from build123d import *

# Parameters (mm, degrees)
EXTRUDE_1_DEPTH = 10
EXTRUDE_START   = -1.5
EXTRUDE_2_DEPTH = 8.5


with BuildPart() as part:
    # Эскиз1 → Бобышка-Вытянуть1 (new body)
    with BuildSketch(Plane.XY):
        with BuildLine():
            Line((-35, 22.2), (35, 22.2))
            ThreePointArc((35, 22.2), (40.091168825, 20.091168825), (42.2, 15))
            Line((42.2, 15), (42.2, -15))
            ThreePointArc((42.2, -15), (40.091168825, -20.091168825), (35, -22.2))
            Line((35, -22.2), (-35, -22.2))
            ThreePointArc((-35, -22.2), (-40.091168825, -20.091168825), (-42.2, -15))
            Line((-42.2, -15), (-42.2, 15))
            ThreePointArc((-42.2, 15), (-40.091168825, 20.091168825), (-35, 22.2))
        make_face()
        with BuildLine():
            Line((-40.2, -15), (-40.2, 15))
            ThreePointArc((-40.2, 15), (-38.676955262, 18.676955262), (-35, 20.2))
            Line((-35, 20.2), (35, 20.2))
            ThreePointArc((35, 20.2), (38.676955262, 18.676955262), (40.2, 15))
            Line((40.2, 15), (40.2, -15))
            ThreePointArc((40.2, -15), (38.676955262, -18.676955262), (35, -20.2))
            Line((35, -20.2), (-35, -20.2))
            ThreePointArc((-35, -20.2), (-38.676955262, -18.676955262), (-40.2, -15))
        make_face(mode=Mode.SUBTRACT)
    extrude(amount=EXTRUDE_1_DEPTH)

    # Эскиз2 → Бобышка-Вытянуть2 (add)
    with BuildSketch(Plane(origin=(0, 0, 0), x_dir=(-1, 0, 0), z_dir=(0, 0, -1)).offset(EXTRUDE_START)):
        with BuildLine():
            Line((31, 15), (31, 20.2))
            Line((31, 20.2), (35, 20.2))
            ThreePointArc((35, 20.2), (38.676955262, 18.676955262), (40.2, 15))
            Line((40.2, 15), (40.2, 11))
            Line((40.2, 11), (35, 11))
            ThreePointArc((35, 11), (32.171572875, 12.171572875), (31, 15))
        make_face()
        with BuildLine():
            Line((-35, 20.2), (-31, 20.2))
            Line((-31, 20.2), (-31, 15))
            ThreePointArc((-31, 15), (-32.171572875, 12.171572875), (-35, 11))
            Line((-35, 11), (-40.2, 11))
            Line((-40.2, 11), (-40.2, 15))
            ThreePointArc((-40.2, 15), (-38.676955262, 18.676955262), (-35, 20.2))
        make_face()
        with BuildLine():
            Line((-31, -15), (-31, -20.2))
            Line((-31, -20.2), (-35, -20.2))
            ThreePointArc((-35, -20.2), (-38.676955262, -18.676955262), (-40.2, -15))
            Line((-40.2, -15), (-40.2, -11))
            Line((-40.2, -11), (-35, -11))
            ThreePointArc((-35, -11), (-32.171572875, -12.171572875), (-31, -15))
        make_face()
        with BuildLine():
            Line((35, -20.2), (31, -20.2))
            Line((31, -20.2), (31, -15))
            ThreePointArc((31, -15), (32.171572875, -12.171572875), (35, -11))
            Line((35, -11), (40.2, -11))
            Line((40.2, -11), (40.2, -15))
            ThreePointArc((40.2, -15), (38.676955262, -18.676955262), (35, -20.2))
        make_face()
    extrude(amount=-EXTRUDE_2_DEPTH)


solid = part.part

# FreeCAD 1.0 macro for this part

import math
import FreeCAD as App
import Part
import Sketcher
from FreeCAD import Vector
Q = App.Units.Quantity

doc = App.newDocument("Part")
body = doc.addObject("PartDesign::Body", "Body")

# Sketch on XY plane
sketch1 = doc.addObject("Sketcher::SketchObject", "Sketch")
body.addObject(sketch1)
sketch1.AttachmentSupport = (doc.XY_Plane, [""])
sketch1.MapMode = "FlatFace"
sketch1.addGeometry([
    Part.LineSegment(Vector(35, 22, 0), Vector(-35, 22, 0)),  # 0
    Part.ArcOfCircle(Part.Circle(Vector(-35, 15, 0), Vector(0, 0, 1), 7), math.radians(90), math.radians(180)),  # 1
    Part.LineSegment(Vector(-42, 15, 0), Vector(-42, -15, 0)),  # 2
    Part.ArcOfCircle(Part.Circle(Vector(-35, -15, 0), Vector(0, 0, 1), 7), math.radians(180), math.radians(270)),  # 3
    Part.LineSegment(Vector(-35, -22, 0), Vector(35, -22, 0)),  # 4
    Part.ArcOfCircle(Part.Circle(Vector(35, -15, 0), Vector(0, 0, 1), 7), math.radians(-90), math.radians(0)),  # 5
    Part.LineSegment(Vector(42, -15, 0), Vector(42, 15, 0)),  # 6
    Part.ArcOfCircle(Part.Circle(Vector(35, 15, 0), Vector(0, 0, 1), 7), math.radians(0), math.radians(90)),  # 7
    Part.LineSegment(Vector(-40, -15, 0), Vector(-40, 15, 0)),  # 8
    Part.ArcOfCircle(Part.Circle(Vector(-35, 15, 0), Vector(0, 0, 1), 5), math.radians(90), math.radians(180)),  # 9
    Part.LineSegment(Vector(-35, 20, 0), Vector(35, 20, 0)),  # 10
    Part.ArcOfCircle(Part.Circle(Vector(35, 15, 0), Vector(0, 0, 1), 5), math.radians(0), math.radians(90)),  # 11
    Part.LineSegment(Vector(40, 15, 0), Vector(40, -15, 0)),  # 12
    Part.ArcOfCircle(Part.Circle(Vector(35, -15, 0), Vector(0, 0, 1), 5), math.radians(-90), math.radians(0)),  # 13
    Part.LineSegment(Vector(35, -20, 0), Vector(-35, -20, 0)),  # 14
    Part.ArcOfCircle(Part.Circle(Vector(-35, -15, 0), Vector(0, 0, 1), 5), math.radians(-180), math.radians(-90)),  # 15
], False)
sketch1.addConstraint([
    Sketcher.Constraint("Tangent", 0, 2, 1, 1),
    Sketcher.Constraint("Tangent", 1, 2, 2, 1),
    Sketcher.Constraint("Tangent", 2, 2, 3, 1),
    Sketcher.Constraint("Tangent", 3, 2, 4, 1),
    Sketcher.Constraint("Tangent", 4, 2, 5, 1),
    Sketcher.Constraint("Tangent", 5, 2, 6, 1),
    Sketcher.Constraint("Tangent", 6, 2, 7, 1),
    Sketcher.Constraint("Tangent", 7, 2, 0, 1),
    Sketcher.Constraint("Tangent", 8, 2, 9, 2),
    Sketcher.Constraint("Tangent", 9, 1, 10, 1),
    Sketcher.Constraint("Tangent", 10, 2, 11, 2),
    Sketcher.Constraint("Tangent", 11, 1, 12, 1),
    Sketcher.Constraint("Tangent", 12, 2, 13, 2),
    Sketcher.Constraint("Tangent", 13, 1, 14, 1),
    Sketcher.Constraint("Tangent", 14, 2, 15, 2),
    Sketcher.Constraint("Tangent", 15, 1, 8, 1),
    Sketcher.Constraint("Horizontal", 0),
    Sketcher.Constraint("Vertical", 2),
    Sketcher.Constraint("Horizontal", 4),
    Sketcher.Constraint("Vertical", 6),
    Sketcher.Constraint("Vertical", 8),
    Sketcher.Constraint("Horizontal", 10),
    Sketcher.Constraint("Vertical", 12),
    Sketcher.Constraint("Horizontal", 14),
    Sketcher.Constraint("Coincident", 9, 3, 1, 3),
    Sketcher.Constraint("Coincident", 11, 3, 7, 3),
    Sketcher.Constraint("Coincident", 13, 3, 5, 3),
    Sketcher.Constraint("Equal", 1, 3),
    Sketcher.Constraint("Equal", 3, 5),
    Sketcher.Constraint("Equal", 5, 7),
    Sketcher.Constraint("Equal", 13, 15),
    Sketcher.Constraint("Symmetric", 1, 3, 5, 3, -1, 1),
    Sketcher.Constraint("Radius", 1, Q("7.2 mm")),
    Sketcher.Constraint("Radius", 9, Q("5.2 mm")),
    Sketcher.Constraint("DistanceX", 0, 2, 0, 1, Q("70 mm")),
    Sketcher.Constraint("DistanceY", 2, 2, 2, 1, Q("30 mm")),
])
pad1 = doc.addObject("PartDesign::Pad", "Pad")
body.addObject(pad1)
pad1.Profile = sketch1
pad1.Length = 10

# Sketch on XY plane
sketch2 = doc.addObject("Sketcher::SketchObject", "Sketch001")
body.addObject(sketch2)
sketch2.AttachmentSupport = (doc.XY_Plane, [""])
sketch2.MapMode = "FlatFace"
sketch2.AttachmentOffset = App.Placement(Vector(0, 0, 1.5), App.Rotation())
sketch2.addGeometry([
    Part.LineSegment(Vector(-31, 20.2, 0), Vector(-31, 15, 0)),  # 0
    Part.ArcOfCircle(Part.Circle(Vector(-35, 15, 0), Vector(0, 0, 1), 4), math.radians(-90), math.radians(0)),  # 1
    Part.LineSegment(Vector(-35, 11, 0), Vector(-40.2, 11, 0)),  # 2
    Part.LineSegment(Vector(-40.2, 11, 0), Vector(-40.2, 15, 0)),  # 3
    Part.ArcOfCircle(Part.Circle(Vector(-35, 15, 0), Vector(0, 0, 1), 5.2), math.radians(90), math.radians(180)),  # 4
    Part.LineSegment(Vector(-35, 20.2, 0), Vector(-31, 20.2, 0)),  # 5
    Part.LineSegment(Vector(31, 20.2, 0), Vector(35, 20.2, 0)),  # 6
    Part.ArcOfCircle(Part.Circle(Vector(35, 15, 0), Vector(0, 0, 1), 5.2), math.radians(0), math.radians(90)),  # 7
    Part.LineSegment(Vector(40.2, 15, 0), Vector(40.2, 11, 0)),  # 8
    Part.LineSegment(Vector(40.2, 11, 0), Vector(35, 11, 0)),  # 9
    Part.ArcOfCircle(Part.Circle(Vector(35, 15, 0), Vector(0, 0, 1), 4), math.radians(180), math.radians(270)),  # 10
    Part.LineSegment(Vector(31, 15, 0), Vector(31, 20.2, 0)),  # 11
    Part.LineSegment(Vector(31, -20.2, 0), Vector(31, -15, 0)),  # 12
    Part.ArcOfCircle(Part.Circle(Vector(35, -15, 0), Vector(0, 0, 1), 4), math.radians(90), math.radians(180)),  # 13
    Part.LineSegment(Vector(35, -11, 0), Vector(40.2, -11, 0)),  # 14
    Part.LineSegment(Vector(40.2, -11, 0), Vector(40.2, -15, 0)),  # 15
    Part.ArcOfCircle(Part.Circle(Vector(35, -15, 0), Vector(0, 0, 1), 5.2), math.radians(-90), math.radians(0)),  # 16
    Part.LineSegment(Vector(35, -20.2, 0), Vector(31, -20.2, 0)),  # 17
    Part.LineSegment(Vector(-31, -20.2, 0), Vector(-35, -20.2, 0)),  # 18
    Part.ArcOfCircle(Part.Circle(Vector(-35, -15, 0), Vector(0, 0, 1), 5.2), math.radians(-180), math.radians(-90)),  # 19
    Part.LineSegment(Vector(-40.2, -15, 0), Vector(-40.2, -11, 0)),  # 20
    Part.LineSegment(Vector(-40.2, -11, 0), Vector(-35, -11, 0)),  # 21
    Part.ArcOfCircle(Part.Circle(Vector(-35, -15, 0), Vector(0, 0, 1), 4), math.radians(0), math.radians(90)),  # 22
    Part.LineSegment(Vector(-31, -15, 0), Vector(-31, -20.2, 0)),  # 23
], False)
sketch2.addConstraint([
    Sketcher.Constraint("Tangent", 0, 2, 1, 2),
    Sketcher.Constraint("Tangent", 1, 1, 2, 1),
    Sketcher.Constraint("Coincident", 2, 2, 3, 1),
    Sketcher.Constraint("Tangent", 3, 2, 4, 2),
    Sketcher.Constraint("Tangent", 4, 1, 5, 1),
    Sketcher.Constraint("Coincident", 5, 2, 0, 1),
    Sketcher.Constraint("Tangent", 6, 2, 7, 2),
    Sketcher.Constraint("Tangent", 7, 1, 8, 1),
    Sketcher.Constraint("Coincident", 8, 2, 9, 1),
    Sketcher.Constraint("Tangent", 9, 2, 10, 2),
    Sketcher.Constraint("Tangent", 10, 1, 11, 1),
    Sketcher.Constraint("Coincident", 11, 2, 6, 1),
    Sketcher.Constraint("Tangent", 12, 2, 13, 2),
    Sketcher.Constraint("Tangent", 13, 1, 14, 1),
    Sketcher.Constraint("Coincident", 14, 2, 15, 1),
    Sketcher.Constraint("Tangent", 15, 2, 16, 2),
    Sketcher.Constraint("Tangent", 16, 1, 17, 1),
    Sketcher.Constraint("Coincident", 17, 2, 12, 1),
    Sketcher.Constraint("Tangent", 18, 2, 19, 2),
    Sketcher.Constraint("Tangent", 19, 1, 20, 1),
    Sketcher.Constraint("Coincident", 20, 2, 21, 1),
    Sketcher.Constraint("Tangent", 21, 2, 22, 2),
    Sketcher.Constraint("Tangent", 22, 1, 23, 1),
    Sketcher.Constraint("Coincident", 23, 2, 18, 1),
    Sketcher.Constraint("Vertical", 0),
    Sketcher.Constraint("Horizontal", 2),
    Sketcher.Constraint("Vertical", 3),
    Sketcher.Constraint("Horizontal", 5),
    Sketcher.Constraint("Horizontal", 6),
    Sketcher.Constraint("Vertical", 8),
    Sketcher.Constraint("Horizontal", 9),
    Sketcher.Constraint("Vertical", 11),
    Sketcher.Constraint("Vertical", 12),
    Sketcher.Constraint("Horizontal", 14),
    Sketcher.Constraint("Vertical", 15),
    Sketcher.Constraint("Horizontal", 17),
    Sketcher.Constraint("Horizontal", 18),
    Sketcher.Constraint("Vertical", 20),
    Sketcher.Constraint("Horizontal", 21),
    Sketcher.Constraint("Vertical", 23),
    Sketcher.Constraint("Coincident", 4, 3, 1, 3),
    Sketcher.Constraint("Coincident", 10, 3, 7, 3),
    Sketcher.Constraint("Coincident", 16, 3, 13, 3),
    Sketcher.Constraint("Coincident", 22, 3, 19, 3),
    Sketcher.Constraint("Equal", 4, 7),
    Sketcher.Constraint("Equal", 1, 10),
    Sketcher.Constraint("Equal", 10, 13),
    Sketcher.Constraint("Equal", 7, 16),
    Sketcher.Constraint("Equal", 16, 19),
    Sketcher.Constraint("Equal", 13, 22),
    Sketcher.Constraint("Symmetric", 1, 3, 13, 3, -1, 1),
    Sketcher.Constraint("Symmetric", 7, 3, 19, 3, -1, 1),
    Sketcher.Constraint("Symmetric", 1, 3, 7, 3, -2),
    Sketcher.Constraint("Radius", 1, Q("4 mm")),
    Sketcher.Constraint("Radius", 4, Q("5.2 mm")),
    Sketcher.Constraint("DistanceX", 1, 3, -1, 1, Q("35 mm")),
    Sketcher.Constraint("DistanceY", -1, 1, 1, 3, Q("15 mm")),
])
pad2 = doc.addObject("PartDesign::Pad", "Pad001")
body.addObject(pad2)
pad2.Profile = sketch2
pad2.Length = 8.5

doc.recompute()
